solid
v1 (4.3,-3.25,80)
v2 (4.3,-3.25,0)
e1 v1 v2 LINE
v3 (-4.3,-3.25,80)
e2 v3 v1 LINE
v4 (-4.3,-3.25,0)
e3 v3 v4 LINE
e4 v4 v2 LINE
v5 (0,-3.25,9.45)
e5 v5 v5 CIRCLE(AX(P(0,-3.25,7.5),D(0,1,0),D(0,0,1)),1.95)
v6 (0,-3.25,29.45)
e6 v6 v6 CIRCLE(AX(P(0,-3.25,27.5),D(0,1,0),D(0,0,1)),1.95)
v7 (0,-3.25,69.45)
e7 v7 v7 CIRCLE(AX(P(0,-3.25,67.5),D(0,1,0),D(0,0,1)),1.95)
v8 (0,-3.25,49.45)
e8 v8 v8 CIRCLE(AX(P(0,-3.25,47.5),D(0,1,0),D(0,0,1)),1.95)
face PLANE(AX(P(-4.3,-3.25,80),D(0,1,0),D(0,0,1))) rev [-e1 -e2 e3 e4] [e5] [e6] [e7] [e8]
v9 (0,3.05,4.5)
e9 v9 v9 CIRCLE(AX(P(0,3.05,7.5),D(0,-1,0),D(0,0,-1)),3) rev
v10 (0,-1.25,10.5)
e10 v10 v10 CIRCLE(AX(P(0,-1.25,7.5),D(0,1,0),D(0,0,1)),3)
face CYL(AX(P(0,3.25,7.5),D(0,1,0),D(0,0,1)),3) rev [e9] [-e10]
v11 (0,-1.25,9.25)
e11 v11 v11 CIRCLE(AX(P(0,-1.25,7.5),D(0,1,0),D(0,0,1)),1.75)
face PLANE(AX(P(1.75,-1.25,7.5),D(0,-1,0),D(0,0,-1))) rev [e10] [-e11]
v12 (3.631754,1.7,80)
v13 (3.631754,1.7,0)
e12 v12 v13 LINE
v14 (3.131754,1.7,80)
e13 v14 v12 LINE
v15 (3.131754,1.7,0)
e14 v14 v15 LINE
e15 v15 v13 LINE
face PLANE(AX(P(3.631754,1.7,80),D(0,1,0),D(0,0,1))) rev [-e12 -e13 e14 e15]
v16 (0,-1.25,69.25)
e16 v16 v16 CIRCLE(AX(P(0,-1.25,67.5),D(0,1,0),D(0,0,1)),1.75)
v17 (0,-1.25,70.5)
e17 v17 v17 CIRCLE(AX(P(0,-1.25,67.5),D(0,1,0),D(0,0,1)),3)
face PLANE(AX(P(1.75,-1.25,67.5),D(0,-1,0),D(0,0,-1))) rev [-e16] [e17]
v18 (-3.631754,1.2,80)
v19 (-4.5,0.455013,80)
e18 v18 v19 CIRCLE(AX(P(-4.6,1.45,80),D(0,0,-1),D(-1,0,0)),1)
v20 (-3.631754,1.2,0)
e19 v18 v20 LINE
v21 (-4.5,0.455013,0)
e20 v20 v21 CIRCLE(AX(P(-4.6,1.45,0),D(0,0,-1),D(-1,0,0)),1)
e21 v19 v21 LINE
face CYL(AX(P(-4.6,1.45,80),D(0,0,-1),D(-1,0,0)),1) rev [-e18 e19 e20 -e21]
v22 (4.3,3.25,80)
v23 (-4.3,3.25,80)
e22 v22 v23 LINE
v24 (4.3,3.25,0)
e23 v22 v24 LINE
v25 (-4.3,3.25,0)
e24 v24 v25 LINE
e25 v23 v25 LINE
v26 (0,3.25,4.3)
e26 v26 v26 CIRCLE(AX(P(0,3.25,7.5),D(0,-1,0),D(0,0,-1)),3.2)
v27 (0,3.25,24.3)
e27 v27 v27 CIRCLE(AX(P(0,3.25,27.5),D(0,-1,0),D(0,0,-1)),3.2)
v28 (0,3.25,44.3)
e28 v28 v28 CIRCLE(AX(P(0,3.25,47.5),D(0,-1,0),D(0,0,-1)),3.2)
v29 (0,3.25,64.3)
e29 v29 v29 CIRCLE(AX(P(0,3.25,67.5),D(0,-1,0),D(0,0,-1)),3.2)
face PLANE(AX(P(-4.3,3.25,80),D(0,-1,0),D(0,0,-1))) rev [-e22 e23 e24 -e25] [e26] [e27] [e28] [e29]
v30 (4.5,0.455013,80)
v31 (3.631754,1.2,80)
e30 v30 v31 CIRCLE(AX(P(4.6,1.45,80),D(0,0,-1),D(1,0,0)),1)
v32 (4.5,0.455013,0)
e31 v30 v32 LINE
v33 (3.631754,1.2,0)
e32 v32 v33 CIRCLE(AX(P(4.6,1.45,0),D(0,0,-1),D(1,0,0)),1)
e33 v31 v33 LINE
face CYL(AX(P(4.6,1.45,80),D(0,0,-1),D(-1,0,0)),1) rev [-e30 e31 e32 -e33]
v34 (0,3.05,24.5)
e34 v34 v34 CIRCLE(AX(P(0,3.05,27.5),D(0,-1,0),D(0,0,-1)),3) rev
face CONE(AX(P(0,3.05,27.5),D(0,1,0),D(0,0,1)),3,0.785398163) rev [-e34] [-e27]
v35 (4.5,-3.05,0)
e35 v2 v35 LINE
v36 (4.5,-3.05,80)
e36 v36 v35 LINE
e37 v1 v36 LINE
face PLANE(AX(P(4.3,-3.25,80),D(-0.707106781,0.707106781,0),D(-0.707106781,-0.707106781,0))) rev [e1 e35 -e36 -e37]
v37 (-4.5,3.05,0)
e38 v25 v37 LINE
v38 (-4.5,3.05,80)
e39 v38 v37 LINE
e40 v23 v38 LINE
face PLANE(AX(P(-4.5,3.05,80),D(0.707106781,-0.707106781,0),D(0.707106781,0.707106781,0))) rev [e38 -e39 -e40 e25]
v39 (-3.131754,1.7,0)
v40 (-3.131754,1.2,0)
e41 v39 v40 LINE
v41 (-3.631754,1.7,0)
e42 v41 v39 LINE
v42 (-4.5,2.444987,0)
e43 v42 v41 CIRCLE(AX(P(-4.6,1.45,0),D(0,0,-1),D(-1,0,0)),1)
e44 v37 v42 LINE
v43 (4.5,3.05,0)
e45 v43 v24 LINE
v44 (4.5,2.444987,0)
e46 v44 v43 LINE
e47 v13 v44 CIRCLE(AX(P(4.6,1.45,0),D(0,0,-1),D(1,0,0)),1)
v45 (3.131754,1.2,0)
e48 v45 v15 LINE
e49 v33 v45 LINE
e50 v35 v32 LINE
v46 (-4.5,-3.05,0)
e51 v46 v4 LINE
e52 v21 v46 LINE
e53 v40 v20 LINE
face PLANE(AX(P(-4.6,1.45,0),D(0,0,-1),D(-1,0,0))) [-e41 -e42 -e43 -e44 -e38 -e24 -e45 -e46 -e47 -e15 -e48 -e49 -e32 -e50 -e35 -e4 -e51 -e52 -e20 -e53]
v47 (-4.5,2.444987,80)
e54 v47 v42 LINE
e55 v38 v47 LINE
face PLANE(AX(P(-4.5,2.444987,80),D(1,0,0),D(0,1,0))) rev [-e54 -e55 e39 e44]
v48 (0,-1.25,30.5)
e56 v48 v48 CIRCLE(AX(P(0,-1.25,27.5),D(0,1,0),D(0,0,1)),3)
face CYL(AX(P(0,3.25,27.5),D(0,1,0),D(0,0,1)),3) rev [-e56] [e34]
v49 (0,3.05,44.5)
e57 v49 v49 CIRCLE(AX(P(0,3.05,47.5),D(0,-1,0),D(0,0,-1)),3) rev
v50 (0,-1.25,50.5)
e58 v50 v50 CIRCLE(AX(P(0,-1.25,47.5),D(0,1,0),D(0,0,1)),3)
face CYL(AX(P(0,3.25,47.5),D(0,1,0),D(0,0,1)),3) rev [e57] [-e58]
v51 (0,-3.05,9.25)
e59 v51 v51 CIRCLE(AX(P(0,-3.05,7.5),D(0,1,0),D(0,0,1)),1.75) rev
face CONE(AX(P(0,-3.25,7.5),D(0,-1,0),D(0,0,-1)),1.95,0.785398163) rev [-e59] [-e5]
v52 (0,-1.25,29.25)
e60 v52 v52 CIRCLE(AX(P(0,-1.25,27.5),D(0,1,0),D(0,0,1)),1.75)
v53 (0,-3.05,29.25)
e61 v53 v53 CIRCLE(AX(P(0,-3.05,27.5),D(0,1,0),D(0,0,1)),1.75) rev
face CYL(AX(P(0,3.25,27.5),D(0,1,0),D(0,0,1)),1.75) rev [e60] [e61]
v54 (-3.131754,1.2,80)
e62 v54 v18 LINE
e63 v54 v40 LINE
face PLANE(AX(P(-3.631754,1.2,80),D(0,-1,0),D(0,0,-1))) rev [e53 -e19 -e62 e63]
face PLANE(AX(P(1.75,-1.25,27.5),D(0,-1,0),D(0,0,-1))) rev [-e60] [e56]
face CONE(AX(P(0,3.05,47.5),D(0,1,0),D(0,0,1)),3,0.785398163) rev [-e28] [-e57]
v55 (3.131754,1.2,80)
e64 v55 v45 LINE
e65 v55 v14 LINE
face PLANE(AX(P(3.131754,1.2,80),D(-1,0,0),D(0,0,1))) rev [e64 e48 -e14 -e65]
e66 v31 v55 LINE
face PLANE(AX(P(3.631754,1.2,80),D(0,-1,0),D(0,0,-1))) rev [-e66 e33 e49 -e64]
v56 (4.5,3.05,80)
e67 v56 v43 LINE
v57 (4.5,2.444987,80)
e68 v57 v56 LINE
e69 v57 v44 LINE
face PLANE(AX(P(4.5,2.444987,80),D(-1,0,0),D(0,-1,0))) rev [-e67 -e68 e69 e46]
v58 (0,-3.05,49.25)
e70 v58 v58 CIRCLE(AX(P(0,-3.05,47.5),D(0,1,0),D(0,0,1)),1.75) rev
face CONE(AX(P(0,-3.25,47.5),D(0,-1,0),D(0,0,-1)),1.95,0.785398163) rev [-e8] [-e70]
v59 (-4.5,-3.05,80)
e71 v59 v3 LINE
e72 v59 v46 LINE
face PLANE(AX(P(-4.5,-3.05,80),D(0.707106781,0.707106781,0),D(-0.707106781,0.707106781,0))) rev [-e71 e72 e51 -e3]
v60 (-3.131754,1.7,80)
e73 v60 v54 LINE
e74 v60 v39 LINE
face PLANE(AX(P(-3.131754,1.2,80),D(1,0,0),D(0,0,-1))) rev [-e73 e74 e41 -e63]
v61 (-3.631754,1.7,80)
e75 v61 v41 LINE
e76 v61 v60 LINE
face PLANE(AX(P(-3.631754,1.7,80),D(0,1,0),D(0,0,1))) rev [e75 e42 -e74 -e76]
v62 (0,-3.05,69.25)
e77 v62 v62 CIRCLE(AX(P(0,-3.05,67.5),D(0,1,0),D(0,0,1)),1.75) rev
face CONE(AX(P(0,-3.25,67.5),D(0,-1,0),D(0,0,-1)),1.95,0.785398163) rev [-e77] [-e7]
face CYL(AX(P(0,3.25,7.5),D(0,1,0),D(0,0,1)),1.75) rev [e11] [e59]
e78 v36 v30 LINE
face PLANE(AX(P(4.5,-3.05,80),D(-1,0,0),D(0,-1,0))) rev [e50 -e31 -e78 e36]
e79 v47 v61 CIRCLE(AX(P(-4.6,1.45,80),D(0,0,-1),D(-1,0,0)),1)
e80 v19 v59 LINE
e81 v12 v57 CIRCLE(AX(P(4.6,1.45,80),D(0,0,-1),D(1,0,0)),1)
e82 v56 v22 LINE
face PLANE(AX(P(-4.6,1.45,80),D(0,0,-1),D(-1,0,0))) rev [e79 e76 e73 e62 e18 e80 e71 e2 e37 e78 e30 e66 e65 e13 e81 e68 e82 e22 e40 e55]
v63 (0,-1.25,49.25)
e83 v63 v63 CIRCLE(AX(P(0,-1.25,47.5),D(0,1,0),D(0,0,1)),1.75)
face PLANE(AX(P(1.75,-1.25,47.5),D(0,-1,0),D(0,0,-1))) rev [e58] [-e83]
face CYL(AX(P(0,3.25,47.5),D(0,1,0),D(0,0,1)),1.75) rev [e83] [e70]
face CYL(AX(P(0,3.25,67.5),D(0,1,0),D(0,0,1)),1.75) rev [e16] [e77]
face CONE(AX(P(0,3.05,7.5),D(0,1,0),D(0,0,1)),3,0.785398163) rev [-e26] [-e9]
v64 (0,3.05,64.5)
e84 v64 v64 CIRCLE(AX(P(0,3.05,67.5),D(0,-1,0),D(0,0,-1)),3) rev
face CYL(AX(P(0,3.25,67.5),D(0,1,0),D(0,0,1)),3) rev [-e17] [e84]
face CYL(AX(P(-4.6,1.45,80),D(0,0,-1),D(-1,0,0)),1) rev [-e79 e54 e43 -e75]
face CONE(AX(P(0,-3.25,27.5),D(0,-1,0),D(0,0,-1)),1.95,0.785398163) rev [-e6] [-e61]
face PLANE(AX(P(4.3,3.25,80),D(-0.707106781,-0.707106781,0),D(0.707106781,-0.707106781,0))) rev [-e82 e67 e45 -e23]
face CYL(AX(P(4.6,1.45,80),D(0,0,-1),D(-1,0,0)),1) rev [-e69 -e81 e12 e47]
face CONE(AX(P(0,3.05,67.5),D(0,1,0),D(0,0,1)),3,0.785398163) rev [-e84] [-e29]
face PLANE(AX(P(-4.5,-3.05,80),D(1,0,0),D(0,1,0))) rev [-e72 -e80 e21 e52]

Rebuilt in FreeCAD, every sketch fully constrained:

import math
import FreeCAD as App
import Part
import Sketcher
Q = App.Units.Quantity


def edges_at(feature, points):
    """Names of the edges that pass closest to the given points."""
    edges = feature.Shape.Edges
    near = lambda p: min(range(len(edges)), key=lambda i: edges[i].distToShape(Part.Vertex(*p))[0])
    return sorted({f"Edge{near(p) + 1}" for p in points})

doc = App.newDocument("Part")
body = doc.addObject("PartDesign::Body", "Body")

sketch1 = doc.addObject("Sketcher::SketchObject", "Sketch")
body.addObject(sketch1)
sketch1.AttachmentSupport = (doc.XY_Plane, [""])
sketch1.MapMode = "FlatFace"
sketch1.addGeometry(Part.LineSegment(App.Vector(-4.3, -3.25, 0), App.Vector(4.3, -3.25, 0)), False)
sketch1.addGeometry(Part.LineSegment(App.Vector(4.3, -3.25, 0), App.Vector(4.5, -3.05, 0)), False)
sketch1.addGeometry(Part.LineSegment(App.Vector(4.5, -3.05, 0), App.Vector(4.5, 0.46, 0)), False)
sketch1.addGeometry(Part.ArcOfCircle(Part.Circle(App.Vector(4.6, 1.45, 0), App.Vector(0, 0, 1), 1), math.radians(-166), math.radians(-96)), False)
sketch1.addGeometry(Part.LineSegment(App.Vector(3.63, 1.2, 0), App.Vector(3.13, 1.2, 0)), False)
sketch1.addGeometry(Part.LineSegment(App.Vector(3.13, 1.2, 0), App.Vector(3.13, 1.7, 0)), False)
sketch1.addGeometry(Part.LineSegment(App.Vector(3.13, 1.7, 0), App.Vector(3.63, 1.7, 0)), False)
sketch1.addGeometry(Part.ArcOfCircle(Part.Circle(App.Vector(4.6, 1.45, 0), App.Vector(0, 0, 1), 1), math.radians(96), math.radians(166)), False)
sketch1.addGeometry(Part.LineSegment(App.Vector(4.5, 2.44, 0), App.Vector(4.5, 3.05, 0)), False)
sketch1.addGeometry(Part.LineSegment(App.Vector(4.5, 3.05, 0), App.Vector(4.3, 3.25, 0)), False)
sketch1.addGeometry(Part.LineSegment(App.Vector(4.3, 3.25, 0), App.Vector(-4.3, 3.25, 0)), False)
sketch1.addGeometry(Part.LineSegment(App.Vector(-4.3, 3.25, 0), App.Vector(-4.5, 3.05, 0)), False)
sketch1.addGeometry(Part.LineSegment(App.Vector(-4.5, 3.05, 0), App.Vector(-4.5, 2.44, 0)), False)
sketch1.addGeometry(Part.ArcOfCircle(Part.Circle(App.Vector(-4.6, 1.45, 0), App.Vector(0, 0, 1), 1), math.radians(14), math.radians(84)), False)
sketch1.addGeometry(Part.LineSegment(App.Vector(-3.63, 1.7, 0), App.Vector(-3.13, 1.7, 0)), False)
sketch1.addGeometry(Part.LineSegment(App.Vector(-3.13, 1.7, 0), App.Vector(-3.13, 1.2, 0)), False)
sketch1.addGeometry(Part.LineSegment(App.Vector(-3.13, 1.2, 0), App.Vector(-3.63, 1.2, 0)), False)
sketch1.addGeometry(Part.ArcOfCircle(Part.Circle(App.Vector(-4.6, 1.45, 0), App.Vector(0, 0, 1), 1), math.radians(-84), math.radians(-14)), False)
sketch1.addGeometry(Part.LineSegment(App.Vector(-4.5, 0.46, 0), App.Vector(-4.5, -3.05, 0)), False)
sketch1.addGeometry(Part.LineSegment(App.Vector(-4.5, -3.05, 0), App.Vector(-4.3, -3.25, 0)), False)
sketch1.addConstraint(Sketcher.Constraint("Coincident", 0, 2, 1, 1))
sketch1.addConstraint(Sketcher.Constraint("Coincident", 1, 2, 2, 1))
sketch1.addConstraint(Sketcher.Constraint("Coincident", 2, 2, 3, 2))
sketch1.addConstraint(Sketcher.Constraint("Coincident", 3, 1, 4, 1))
sketch1.addConstraint(Sketcher.Constraint("Coincident", 4, 2, 5, 1))
sketch1.addConstraint(Sketcher.Constraint("Coincident", 5, 2, 6, 1))
sketch1.addConstraint(Sketcher.Constraint("Coincident", 6, 2, 7, 2))
sketch1.addConstraint(Sketcher.Constraint("Coincident", 7, 1, 8, 1))
sketch1.addConstraint(Sketcher.Constraint("Coincident", 8, 2, 9, 1))
sketch1.addConstraint(Sketcher.Constraint("Coincident", 9, 2, 10, 1))
sketch1.addConstraint(Sketcher.Constraint("Coincident", 10, 2, 11, 1))
sketch1.addConstraint(Sketcher.Constraint("Coincident", 11, 2, 12, 1))
sketch1.addConstraint(Sketcher.Constraint("Coincident", 12, 2, 13, 2))
sketch1.addConstraint(Sketcher.Constraint("Coincident", 13, 1, 14, 1))
sketch1.addConstraint(Sketcher.Constraint("Coincident", 14, 2, 15, 1))
sketch1.addConstraint(Sketcher.Constraint("Coincident", 15, 2, 16, 1))
sketch1.addConstraint(Sketcher.Constraint("Coincident", 16, 2, 17, 2))
sketch1.addConstraint(Sketcher.Constraint("Coincident", 17, 1, 18, 1))
sketch1.addConstraint(Sketcher.Constraint("Coincident", 18, 2, 19, 1))
sketch1.addConstraint(Sketcher.Constraint("Coincident", 19, 2, 0, 1))
sketch1.addConstraint(Sketcher.Constraint("Horizontal", 0))
sketch1.addConstraint(Sketcher.Constraint("Vertical", 2))
sketch1.addConstraint(Sketcher.Constraint("Horizontal", 4))
sketch1.addConstraint(Sketcher.Constraint("Vertical", 5))
sketch1.addConstraint(Sketcher.Constraint("Horizontal", 6))
sketch1.addConstraint(Sketcher.Constraint("Vertical", 8))
sketch1.addConstraint(Sketcher.Constraint("Horizontal", 10))
sketch1.addConstraint(Sketcher.Constraint("Vertical", 12))
sketch1.addConstraint(Sketcher.Constraint("Horizontal", 14))
sketch1.addConstraint(Sketcher.Constraint("Vertical", 15))
sketch1.addConstraint(Sketcher.Constraint("Horizontal", 16))
sketch1.addConstraint(Sketcher.Constraint("Vertical", 18))
sketch1.addConstraint(Sketcher.Constraint("Coincident", 7, 3, 3, 3))
sketch1.addConstraint(Sketcher.Constraint("Coincident", 17, 3, 13, 3))
sketch1.addConstraint(Sketcher.Constraint("Equal", 3, 7))
sketch1.addConstraint(Sketcher.Constraint("Equal", 7, 13))
sketch1.addConstraint(Sketcher.Constraint("Equal", 13, 17))
sketch1.addConstraint(Sketcher.Constraint("Symmetric", 0, 2, 10, 2, -1, 1))
sketch1.addConstraint(Sketcher.Constraint("Symmetric", 1, 2, 11, 2, -1, 1))
sketch1.addConstraint(Sketcher.Constraint("Symmetric", 8, 2, 18, 2, -1, 1))
sketch1.addConstraint(Sketcher.Constraint("Symmetric", 3, 3, 13, 3, -2))
sketch1.addConstraint(Sketcher.Constraint("Symmetric", 8, 2, 11, 2, -2))
sketch1.addConstraint(Sketcher.Constraint("Symmetric", 5, 2, 14, 2, -2))
sketch1.addConstraint(Sketcher.Constraint("Perpendicular", 1, 9))
sketch1.addConstraint(Sketcher.Constraint("Perpendicular", 11, 19))
sketch1.addConstraint(Sketcher.Constraint("Horizontal", 4, 2, 15, 2))
sketch1.addConstraint(Sketcher.Constraint("Vertical", 3, 1, 6, 2))
sketch1.addConstraint(Sketcher.Constraint("Vertical", 0, 2, 9, 2))
sketch1.addConstraint(Sketcher.Constraint("Equal", 16, 5))
sketch1.addConstraint(Sketcher.Constraint("Radius", 3, Q("1 mm")))
sketch1.addConstraint(Sketcher.Constraint("DistanceX", 0, 1, 0, 2, Q("8.6 mm")))
sketch1.addConstraint(Sketcher.Constraint("DistanceX", 4, 2, 4, 1, Q("0.5 mm")))
sketch1.addConstraint(Sketcher.Constraint("DistanceX", -1, 1, 3, 3, Q("4.6 mm")))
sketch1.addConstraint(Sketcher.Constraint("DistanceX", -1, 1, 1, 2, Q("4.5 mm")))
sketch1.addConstraint(Sketcher.Constraint("DistanceY", -1, 1, 3, 1, Q("1.2 mm")))
sketch1.addConstraint(Sketcher.Constraint("DistanceY", 0, 2, 7, 3, Q("4.7 mm")))
pad1 = doc.addObject("PartDesign::Pad", "Pad")
body.addObject(pad1)
pad1.Profile = sketch1
pad1.Length = 80

sketch2 = doc.addObject("Sketcher::SketchObject", "Sketch001")
body.addObject(sketch2)
sketch2.AttachmentSupport = (doc.XZ_Plane, [""])
sketch2.MapMode = "FlatFace"
sketch2.AttachmentOffset = App.Placement(App.Vector(0, 0, -3.25), App.Rotation())
sketch2.addGeometry(Part.Circle(App.Vector(0, 7.5, 0), App.Vector(0, 0, 1), 1.8), False)
sketch2.addConstraint(Sketcher.Constraint("PointOnObject", 0, 3, -2))
sketch2.addConstraint(Sketcher.Constraint("Diameter", 0, Q("3.5 mm")))
sketch2.addConstraint(Sketcher.Constraint("DistanceY", -1, 1, 0, 3, Q("7.5 mm")))
doc.recompute()
hole = doc.addObject("PartDesign::Hole", "Hole")
body.addObject(hole)
hole.Profile = sketch2
hole.ThreadType = "None"
hole.Diameter = 3.5
hole.DepthType = "ThroughAll"
hole.HoleCutType = "Counterbore"
hole.HoleCutDiameter = 6
hole.HoleCutDepth = 4.5
hole.Reversed = True
doc.recompute()

chamfer = doc.addObject("PartDesign::Chamfer", "Chamfer")
body.addObject(chamfer)
chamfer.Base = (hole, edges_at(hole, [(-3, 3.25, 7.5), (1.75, -3.25, 7.5)]))
chamfer.Size = 0.2
doc.recompute()

linearpattern = doc.addObject("PartDesign::LinearPattern", "LinearPattern")
body.addObject(linearpattern)
linearpattern.Originals = [hole]
linearpattern.Direction = (doc.Z_Axis, [""])
linearpattern.Mode = "offset"
linearpattern.Offset = 20
linearpattern.Occurrences = 4
body.Tip = linearpattern
doc.recompute()

chamfer2 = doc.addObject("PartDesign::Chamfer", "Chamfer001")
body.addObject(chamfer2)
chamfer2.Base = (linearpattern, edges_at(linearpattern, [
    (-3, 3.25, 27.5),
    (1.75, -3.25, 27.5),
    (-3, 3.25, 47.5),
    (1.75, -3.25, 47.5),
    (-3, 3.25, 67.5),
    (1.75, -3.25, 67.5),
]))
chamfer2.Size = 0.2

doc.recompute()
